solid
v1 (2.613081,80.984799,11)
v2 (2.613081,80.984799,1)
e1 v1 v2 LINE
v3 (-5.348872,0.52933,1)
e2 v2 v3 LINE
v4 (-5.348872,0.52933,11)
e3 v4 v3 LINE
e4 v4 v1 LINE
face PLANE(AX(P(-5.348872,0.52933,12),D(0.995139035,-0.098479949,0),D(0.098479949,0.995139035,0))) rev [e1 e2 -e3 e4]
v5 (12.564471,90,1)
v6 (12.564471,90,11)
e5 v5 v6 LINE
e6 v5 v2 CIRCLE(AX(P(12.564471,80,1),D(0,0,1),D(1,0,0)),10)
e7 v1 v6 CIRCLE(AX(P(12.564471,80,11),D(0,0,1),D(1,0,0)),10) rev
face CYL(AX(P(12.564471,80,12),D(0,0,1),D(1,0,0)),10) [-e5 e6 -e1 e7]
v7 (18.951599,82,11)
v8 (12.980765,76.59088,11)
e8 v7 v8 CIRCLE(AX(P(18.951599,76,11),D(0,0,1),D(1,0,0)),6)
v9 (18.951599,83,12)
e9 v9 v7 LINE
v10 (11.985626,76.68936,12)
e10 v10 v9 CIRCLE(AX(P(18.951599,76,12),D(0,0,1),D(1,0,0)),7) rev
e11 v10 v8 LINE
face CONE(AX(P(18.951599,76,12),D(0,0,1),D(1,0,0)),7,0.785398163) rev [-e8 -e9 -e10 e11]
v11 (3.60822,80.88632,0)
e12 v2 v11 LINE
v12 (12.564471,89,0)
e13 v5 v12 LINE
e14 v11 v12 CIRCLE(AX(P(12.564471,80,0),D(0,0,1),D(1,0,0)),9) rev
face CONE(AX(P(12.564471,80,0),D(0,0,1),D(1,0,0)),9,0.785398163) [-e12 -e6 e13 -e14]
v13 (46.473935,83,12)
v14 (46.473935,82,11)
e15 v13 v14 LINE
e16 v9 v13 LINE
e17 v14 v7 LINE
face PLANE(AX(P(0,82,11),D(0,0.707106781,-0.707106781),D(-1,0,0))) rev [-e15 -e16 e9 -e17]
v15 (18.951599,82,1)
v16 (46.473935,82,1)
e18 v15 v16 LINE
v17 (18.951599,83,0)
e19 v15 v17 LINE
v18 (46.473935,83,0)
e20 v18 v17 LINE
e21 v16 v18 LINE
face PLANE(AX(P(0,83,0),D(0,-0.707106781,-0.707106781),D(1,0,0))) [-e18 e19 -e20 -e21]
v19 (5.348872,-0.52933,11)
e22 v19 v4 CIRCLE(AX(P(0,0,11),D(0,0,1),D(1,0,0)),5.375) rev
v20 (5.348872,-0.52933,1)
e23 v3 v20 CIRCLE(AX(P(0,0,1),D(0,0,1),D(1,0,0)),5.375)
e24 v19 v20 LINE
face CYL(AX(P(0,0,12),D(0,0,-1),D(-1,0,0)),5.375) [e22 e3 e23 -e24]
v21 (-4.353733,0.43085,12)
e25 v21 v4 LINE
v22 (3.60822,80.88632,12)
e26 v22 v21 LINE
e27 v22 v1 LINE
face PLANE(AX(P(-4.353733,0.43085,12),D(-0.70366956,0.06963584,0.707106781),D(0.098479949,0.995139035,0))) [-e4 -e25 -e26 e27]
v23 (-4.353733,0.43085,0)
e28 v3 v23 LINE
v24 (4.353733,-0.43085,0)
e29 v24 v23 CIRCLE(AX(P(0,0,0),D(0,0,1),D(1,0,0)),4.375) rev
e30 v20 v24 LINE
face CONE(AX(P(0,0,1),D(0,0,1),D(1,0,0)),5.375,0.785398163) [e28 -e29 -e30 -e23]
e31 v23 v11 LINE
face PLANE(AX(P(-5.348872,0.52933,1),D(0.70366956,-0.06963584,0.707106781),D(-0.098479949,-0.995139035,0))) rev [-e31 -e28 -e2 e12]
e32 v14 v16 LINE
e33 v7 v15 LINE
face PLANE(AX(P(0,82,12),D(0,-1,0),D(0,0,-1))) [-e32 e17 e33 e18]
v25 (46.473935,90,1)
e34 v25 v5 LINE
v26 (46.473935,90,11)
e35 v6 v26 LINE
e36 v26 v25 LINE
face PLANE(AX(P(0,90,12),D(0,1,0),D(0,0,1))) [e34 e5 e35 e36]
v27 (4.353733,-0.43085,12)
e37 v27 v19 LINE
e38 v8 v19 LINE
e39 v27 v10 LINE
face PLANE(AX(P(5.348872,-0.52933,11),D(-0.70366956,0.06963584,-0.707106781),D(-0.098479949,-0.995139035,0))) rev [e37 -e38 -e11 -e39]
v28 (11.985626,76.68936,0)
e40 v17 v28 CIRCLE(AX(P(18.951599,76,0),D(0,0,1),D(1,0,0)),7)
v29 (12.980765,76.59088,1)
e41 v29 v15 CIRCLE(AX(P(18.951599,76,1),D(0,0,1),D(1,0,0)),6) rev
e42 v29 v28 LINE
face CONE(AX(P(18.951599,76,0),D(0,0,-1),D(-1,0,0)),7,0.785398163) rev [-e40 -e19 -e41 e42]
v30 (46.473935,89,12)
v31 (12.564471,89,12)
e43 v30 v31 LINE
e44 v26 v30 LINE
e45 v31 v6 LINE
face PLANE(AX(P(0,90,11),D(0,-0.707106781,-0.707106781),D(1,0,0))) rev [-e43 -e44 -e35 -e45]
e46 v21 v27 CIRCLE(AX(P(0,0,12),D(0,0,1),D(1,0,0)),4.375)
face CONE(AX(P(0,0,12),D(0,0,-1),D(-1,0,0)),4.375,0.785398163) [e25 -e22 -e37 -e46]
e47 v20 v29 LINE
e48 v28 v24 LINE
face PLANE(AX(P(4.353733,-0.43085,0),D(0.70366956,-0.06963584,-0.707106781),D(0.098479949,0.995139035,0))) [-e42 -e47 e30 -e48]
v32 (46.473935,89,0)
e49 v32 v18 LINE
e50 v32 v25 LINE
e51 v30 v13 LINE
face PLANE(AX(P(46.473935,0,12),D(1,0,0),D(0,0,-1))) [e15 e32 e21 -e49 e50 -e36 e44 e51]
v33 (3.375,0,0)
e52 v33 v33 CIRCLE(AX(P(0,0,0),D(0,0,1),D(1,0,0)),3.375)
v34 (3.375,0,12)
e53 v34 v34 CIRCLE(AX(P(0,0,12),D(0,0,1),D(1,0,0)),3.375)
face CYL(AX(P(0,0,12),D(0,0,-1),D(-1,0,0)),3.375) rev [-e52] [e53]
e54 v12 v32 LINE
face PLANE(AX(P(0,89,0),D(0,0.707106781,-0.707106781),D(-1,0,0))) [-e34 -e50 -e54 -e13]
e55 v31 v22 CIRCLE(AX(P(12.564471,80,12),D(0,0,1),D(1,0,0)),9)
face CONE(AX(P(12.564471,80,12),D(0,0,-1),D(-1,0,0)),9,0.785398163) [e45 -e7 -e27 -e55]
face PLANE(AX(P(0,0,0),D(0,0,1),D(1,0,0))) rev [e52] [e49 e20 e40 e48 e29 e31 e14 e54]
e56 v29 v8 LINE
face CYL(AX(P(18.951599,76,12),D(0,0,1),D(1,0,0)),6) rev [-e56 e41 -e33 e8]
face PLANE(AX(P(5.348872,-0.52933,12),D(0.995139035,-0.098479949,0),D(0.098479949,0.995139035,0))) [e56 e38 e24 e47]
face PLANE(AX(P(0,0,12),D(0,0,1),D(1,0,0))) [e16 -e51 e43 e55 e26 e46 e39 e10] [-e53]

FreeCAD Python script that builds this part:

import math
import FreeCAD as App
import Part
import Sketcher

V = App.Vector


def edges_at(feature, points):
    """Names of the edges that pass closest to the given points."""
    edges = feature.Shape.Edges
    near = lambda p: min(range(len(edges)), key=lambda i: edges[i].distToShape(Part.Vertex(*p))[0])
    return sorted({f"Edge{near(p) + 1}" for p in points})

doc = App.newDocument("Part")
params = doc.addObject("Spreadsheet::Sheet", "Params")
for row, (alias, value) in enumerate([
    ("sketch1_diameter", "6.75 mm"),
    ("sketch1_height", "8 mm"),
    ("pad1_length", "12 mm"),
    ("fillet_radius", "10 mm"),
    ("fillet2_radius", "6 mm"),
    ("chamfer_size", "1 mm"),
], start=1):
    params.set(f"A{row}", alias)
    params.set(f"B{row}", "=" + value)
    params.setAlias(f"B{row}", alias)

body = doc.addObject("PartDesign::Body", "Body")

sketch1 = body.newObject("Sketcher::SketchObject", "Sketch")
sketch1.AttachmentSupport = (doc.getObject("XY_Plane"), [""])
sketch1.MapMode = "FlatFace"
sketch1.addGeometry(Part.ArcOfCircle(Part.Circle(V(0, 0, 0), V(0, 0, 1), 5.375), math.radians(174.348354), math.radians(354.348354)), False)
sketch1.addGeometry(Part.LineSegment(V(5.348872, -0.52933, 0), V(13.516057, 82, 0)), False)
sketch1.addGeometry(Part.LineSegment(V(13.516057, 82, 0), V(46.473935, 82, 0)), False)
sketch1.addGeometry(Part.LineSegment(V(46.473935, 82, 0), V(46.473935, 90, 0)), False)
sketch1.addGeometry(Part.LineSegment(V(46.473935, 90, 0), V(3.505234, 90, 0)), False)
sketch1.addGeometry(Part.LineSegment(V(3.505234, 90, 0), V(2.713546, 82, 0)), False)
sketch1.addGeometry(Part.LineSegment(V(2.713546, 82, 0), V(-5.348872, 0.52933, 0)), False)
sketch1.addGeometry(Part.Circle(V(0, 0, 0), V(0, 0, 1), 3.375), False)
sketch1.addConstraint(Sketcher.Constraint("Tangent", 0, 2, 1, 1))
sketch1.addConstraint(Sketcher.Constraint("Coincident", 1, 2, 2, 1))
sketch1.addConstraint(Sketcher.Constraint("Coincident", 2, 2, 3, 1))
sketch1.addConstraint(Sketcher.Constraint("Coincident", 3, 2, 4, 1))
sketch1.addConstraint(Sketcher.Constraint("Coincident", 4, 2, 5, 1))
sketch1.addConstraint(Sketcher.Constraint("Coincident", 5, 2, 6, 1))
sketch1.addConstraint(Sketcher.Constraint("Tangent", 6, 2, 0, 1))
sketch1.addConstraint(Sketcher.Constraint("Horizontal", 2))
sketch1.addConstraint(Sketcher.Constraint("Vertical", 3))
sketch1.addConstraint(Sketcher.Constraint("Horizontal", 4))
sketch1.addConstraint(Sketcher.Constraint("Coincident", 0, 3, -1, 1))
sketch1.addConstraint(Sketcher.Constraint("Coincident", 7, 3, -1, 1))
sketch1.addConstraint(Sketcher.Constraint("Parallel", 1, 5))
sketch1.addConstraint(Sketcher.Constraint("Parallel", 5, 6))
sketch1.addConstraint(Sketcher.Constraint("Horizontal", 2, 2, 5, 2))
sketch1.addConstraint(Sketcher.Constraint("Diameter", 7, 6.75))
sketch1.addConstraint(Sketcher.Constraint("DistanceY", 3, 1, 3, 2, 8.0))
sketch1.addConstraint(Sketcher.Constraint("DistanceY", -1, 1, 1, 2, 82.0))
sketch1.addConstraint(Sketcher.Constraint("Radius", 0, 5.375))
sketch1.addConstraint(Sketcher.Constraint("DistanceX", 4, 2, 4, 1, 42.9687))
sketch1.addConstraint(Sketcher.Constraint("Distance", 1, 82.932461))
sketch1.setExpression("Constraints[15]", "Params.sketch1_diameter")
sketch1.setExpression("Constraints[16]", "Params.sketch1_height")
pad1 = body.newObject("PartDesign::Pad", "Pad")
pad1.Profile = sketch1
pad1.setExpression("Length", "Params.pad1_length")
doc.recompute()

fillet = body.newObject("PartDesign::Fillet", "Fillet")
fillet.Base = (pad1, edges_at(pad1, [(3.505, 90, 6)]))
fillet.setExpression("Radius", "Params.fillet_radius")
doc.recompute()

fillet2 = body.newObject("PartDesign::Fillet", "Fillet001")
fillet2.Base = (fillet, edges_at(fillet, [(13.516, 82, 6)]))
fillet2.setExpression("Radius", "Params.fillet2_radius")
doc.recompute()

chamfer = body.newObject("PartDesign::Chamfer", "Chamfer")
chamfer.Base = (fillet2, edges_at(fillet2, [
    (-0.529, -5.349, 12),
    (-0.529, -5.349, 0),
    (32.713, 82, 12),
    (9.165, 38.031, 0),
    (9.165, 38.031, 12),
    (-1.368, 40.757, 0),
    (-1.368, 40.757, 12),
    (29.519, 90, 0),
    (5.851, 87.411, 0),
    (29.519, 90, 12),
    (5.851, 87.411, 12),
    (14.923, 80.447, 0),
    (14.923, 80.447, 12),
    (32.713, 82, 0),
]))
chamfer.setExpression("Size", "Params.chamfer_size")

doc.recompute()
